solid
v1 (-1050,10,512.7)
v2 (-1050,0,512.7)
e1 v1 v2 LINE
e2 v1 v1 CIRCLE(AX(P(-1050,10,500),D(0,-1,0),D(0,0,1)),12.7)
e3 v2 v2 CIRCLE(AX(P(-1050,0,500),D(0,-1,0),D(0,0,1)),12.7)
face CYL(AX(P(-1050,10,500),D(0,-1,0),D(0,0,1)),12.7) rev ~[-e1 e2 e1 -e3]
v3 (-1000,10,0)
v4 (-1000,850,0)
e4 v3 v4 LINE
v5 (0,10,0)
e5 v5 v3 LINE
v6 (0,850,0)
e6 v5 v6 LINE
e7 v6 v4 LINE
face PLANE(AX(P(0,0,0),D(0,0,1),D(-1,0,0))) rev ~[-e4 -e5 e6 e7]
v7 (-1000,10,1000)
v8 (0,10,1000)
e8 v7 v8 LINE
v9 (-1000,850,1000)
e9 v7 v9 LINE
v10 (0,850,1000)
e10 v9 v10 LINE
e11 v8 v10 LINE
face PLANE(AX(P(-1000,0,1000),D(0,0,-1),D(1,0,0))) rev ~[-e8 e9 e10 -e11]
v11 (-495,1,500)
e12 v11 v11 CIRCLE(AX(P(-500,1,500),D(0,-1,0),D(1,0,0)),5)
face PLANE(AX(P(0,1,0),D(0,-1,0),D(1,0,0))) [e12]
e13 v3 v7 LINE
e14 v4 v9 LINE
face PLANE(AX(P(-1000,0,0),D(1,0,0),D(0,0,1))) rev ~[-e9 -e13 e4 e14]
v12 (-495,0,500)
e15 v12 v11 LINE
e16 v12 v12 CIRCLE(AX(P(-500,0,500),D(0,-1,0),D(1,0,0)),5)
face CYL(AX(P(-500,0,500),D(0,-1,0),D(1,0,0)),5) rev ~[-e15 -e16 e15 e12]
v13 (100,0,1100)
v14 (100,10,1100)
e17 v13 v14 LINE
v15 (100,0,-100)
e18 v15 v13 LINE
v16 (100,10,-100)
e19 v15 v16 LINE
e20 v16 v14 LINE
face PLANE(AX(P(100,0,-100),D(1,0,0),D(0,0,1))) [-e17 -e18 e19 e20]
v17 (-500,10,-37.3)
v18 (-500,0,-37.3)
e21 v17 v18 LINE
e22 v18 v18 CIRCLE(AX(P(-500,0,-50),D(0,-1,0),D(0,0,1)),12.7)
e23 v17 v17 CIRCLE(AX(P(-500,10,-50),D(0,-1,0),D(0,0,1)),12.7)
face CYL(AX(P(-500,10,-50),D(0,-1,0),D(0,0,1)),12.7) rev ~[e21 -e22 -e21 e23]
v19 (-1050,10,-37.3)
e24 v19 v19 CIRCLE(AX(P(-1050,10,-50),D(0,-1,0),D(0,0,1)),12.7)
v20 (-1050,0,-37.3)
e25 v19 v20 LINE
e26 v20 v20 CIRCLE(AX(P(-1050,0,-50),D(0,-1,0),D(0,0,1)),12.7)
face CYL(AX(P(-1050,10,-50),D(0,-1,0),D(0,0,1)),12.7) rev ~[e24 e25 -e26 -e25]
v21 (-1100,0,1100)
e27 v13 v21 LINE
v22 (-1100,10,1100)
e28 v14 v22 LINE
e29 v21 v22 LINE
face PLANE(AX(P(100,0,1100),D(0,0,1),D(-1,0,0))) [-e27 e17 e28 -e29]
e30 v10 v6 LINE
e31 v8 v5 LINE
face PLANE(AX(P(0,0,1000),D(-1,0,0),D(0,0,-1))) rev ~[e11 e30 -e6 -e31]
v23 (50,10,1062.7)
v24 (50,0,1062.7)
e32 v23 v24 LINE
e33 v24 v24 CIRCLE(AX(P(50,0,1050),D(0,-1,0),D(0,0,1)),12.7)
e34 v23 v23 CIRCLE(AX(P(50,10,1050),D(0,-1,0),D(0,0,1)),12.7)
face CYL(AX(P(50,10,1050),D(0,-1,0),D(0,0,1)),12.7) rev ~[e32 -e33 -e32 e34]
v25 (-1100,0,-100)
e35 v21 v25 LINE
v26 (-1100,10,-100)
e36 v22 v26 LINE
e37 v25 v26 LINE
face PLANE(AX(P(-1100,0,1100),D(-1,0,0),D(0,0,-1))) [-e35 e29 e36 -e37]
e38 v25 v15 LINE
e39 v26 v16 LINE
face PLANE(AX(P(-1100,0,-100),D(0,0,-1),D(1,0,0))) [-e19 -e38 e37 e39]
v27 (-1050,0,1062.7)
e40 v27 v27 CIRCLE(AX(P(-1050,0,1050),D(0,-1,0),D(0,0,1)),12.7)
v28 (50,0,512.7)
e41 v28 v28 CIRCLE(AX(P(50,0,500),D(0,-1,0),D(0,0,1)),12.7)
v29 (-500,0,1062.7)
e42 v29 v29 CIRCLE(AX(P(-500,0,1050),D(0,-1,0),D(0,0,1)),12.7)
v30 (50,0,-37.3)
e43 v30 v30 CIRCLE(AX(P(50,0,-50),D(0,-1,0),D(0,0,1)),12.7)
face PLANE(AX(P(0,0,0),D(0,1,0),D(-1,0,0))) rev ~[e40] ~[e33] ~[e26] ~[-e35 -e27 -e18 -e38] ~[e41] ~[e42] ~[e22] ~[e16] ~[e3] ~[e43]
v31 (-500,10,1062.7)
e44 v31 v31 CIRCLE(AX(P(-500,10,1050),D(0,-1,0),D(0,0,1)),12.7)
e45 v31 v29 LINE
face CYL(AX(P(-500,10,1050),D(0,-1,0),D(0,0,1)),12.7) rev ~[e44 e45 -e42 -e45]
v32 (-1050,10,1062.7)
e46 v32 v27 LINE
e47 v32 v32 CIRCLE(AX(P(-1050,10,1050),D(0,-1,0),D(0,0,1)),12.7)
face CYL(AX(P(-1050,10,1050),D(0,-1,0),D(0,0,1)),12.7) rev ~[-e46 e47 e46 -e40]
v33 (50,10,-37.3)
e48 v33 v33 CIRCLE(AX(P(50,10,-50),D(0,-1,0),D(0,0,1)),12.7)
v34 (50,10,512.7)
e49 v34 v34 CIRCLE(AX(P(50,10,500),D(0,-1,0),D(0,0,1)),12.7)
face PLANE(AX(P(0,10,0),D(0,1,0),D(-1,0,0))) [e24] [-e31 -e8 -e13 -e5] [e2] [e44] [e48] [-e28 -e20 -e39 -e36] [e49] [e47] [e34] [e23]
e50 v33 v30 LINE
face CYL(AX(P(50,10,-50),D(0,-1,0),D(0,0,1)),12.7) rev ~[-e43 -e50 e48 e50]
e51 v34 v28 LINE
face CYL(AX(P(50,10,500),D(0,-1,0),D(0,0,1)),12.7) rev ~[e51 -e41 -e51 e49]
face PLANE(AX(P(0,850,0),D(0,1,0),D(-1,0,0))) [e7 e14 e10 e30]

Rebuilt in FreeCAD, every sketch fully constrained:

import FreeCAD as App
import Part
import Sketcher
from FreeCAD import Vector

doc = App.newDocument("Part")
body = doc.addObject("PartDesign::Body", "Body")

# Sketch on XZ plane
sketch1 = doc.addObject("Sketcher::SketchObject", "Sketch")
body.addObject(sketch1)
sketch1.AttachmentSupport = (doc.XZ_Plane, [""])
sketch1.MapMode = "FlatFace"
sketch1.addGeometry([
    Part.LineSegment(Vector(0, 1000, 0), Vector(0, 0, 0)),
    Part.LineSegment(Vector(0, 0, 0), Vector(-1000, 0, 0)),
    Part.LineSegment(Vector(-1000, 0, 0), Vector(-1000, 1000, 0)),
    Part.LineSegment(Vector(-1000, 1000, 0), Vector(0, 1000, 0)),
], False)
sketch1.addConstraint([
    Sketcher.Constraint("Coincident", 0, 2, 1, 1),
    Sketcher.Constraint("Coincident", 1, 2, 2, 1),
    Sketcher.Constraint("Coincident", 2, 2, 3, 1),
    Sketcher.Constraint("Coincident", 3, 2, 0, 1),
    Sketcher.Constraint("Vertical", 0),
    Sketcher.Constraint("Horizontal", 1),
    Sketcher.Constraint("Vertical", 2),
    Sketcher.Constraint("Horizontal", 3),
    Sketcher.Constraint("Coincident", 0, 2, -1, 1),
    Sketcher.Constraint("Equal", 3, 0),
    Sketcher.Constraint("DistanceX", 1, 2, 1, 1, 1000.0),
])
pad1 = doc.addObject("PartDesign::Pad", "Pad")
body.addObject(pad1)
pad1.Profile = sketch1
pad1.Length = 850
pad1.Reversed = True

# Sketch on XZ plane
sketch2 = doc.addObject("Sketcher::SketchObject", "Sketch001")
body.addObject(sketch2)
sketch2.AttachmentSupport = (doc.XZ_Plane, [""])
sketch2.MapMode = "FlatFace"
sketch2.addGeometry([
    Part.LineSegment(Vector(-1100, 1100, 0), Vector(100, 1100, 0)),  # 0
    Part.LineSegment(Vector(100, 1100, 0), Vector(100, -100, 0)),  # 1
    Part.LineSegment(Vector(100, -100, 0), Vector(-1100, -100, 0)),  # 2
    Part.LineSegment(Vector(-1100, -100, 0), Vector(-1100, 1100, 0)),  # 3
    Part.LineSegment(Vector(-1000, 0, 0), Vector(0, 0, 0)),  # 4
    Part.LineSegment(Vector(0, 0, 0), Vector(0, 1000, 0)),  # 5
    Part.LineSegment(Vector(0, 1000, 0), Vector(-1000, 1000, 0)),  # 6
    Part.LineSegment(Vector(-1000, 1000, 0), Vector(-1000, 0, 0)),  # 7
], False)
sketch2.addConstraint([
    Sketcher.Constraint("Coincident", 0, 2, 1, 1),
    Sketcher.Constraint("Coincident", 1, 2, 2, 1),
    Sketcher.Constraint("Coincident", 2, 2, 3, 1),
    Sketcher.Constraint("Coincident", 3, 2, 0, 1),
    Sketcher.Constraint("Coincident", 4, 2, 5, 1),
    Sketcher.Constraint("Coincident", 5, 2, 6, 1),
    Sketcher.Constraint("Coincident", 6, 2, 7, 1),
    Sketcher.Constraint("Coincident", 7, 2, 4, 1),
    Sketcher.Constraint("Horizontal", 0),
    Sketcher.Constraint("Vertical", 1),
    Sketcher.Constraint("Horizontal", 2),
    Sketcher.Constraint("Vertical", 3),
    Sketcher.Constraint("Horizontal", 4),
    Sketcher.Constraint("Vertical", 5),
    Sketcher.Constraint("Horizontal", 6),
    Sketcher.Constraint("Vertical", 7),
    Sketcher.Constraint("Coincident", 4, 2, -1, 1),
    Sketcher.Constraint("Equal", 2, 1),
    Sketcher.Constraint("Equal", 6, 5),
    Sketcher.Constraint("DistanceX", 4, 1, 4, 2, 1000.0),
    Sketcher.Constraint("DistanceX", -1, 1, 0, 2, 100.0),
    Sketcher.Constraint("DistanceY", 1, 2, -1, 1, 100.0),
    Sketcher.Constraint("DistanceY", 5, 2, 0, 2, 100.0),
])
pad2 = doc.addObject("PartDesign::Pad", "Pad001")
body.addObject(pad2)
pad2.Profile = sketch2
pad2.Length = 10
pad2.Reversed = True

# Sketch on XZ plane
sketch3 = doc.addObject("Sketcher::SketchObject", "Sketch002")
body.addObject(sketch3)
sketch3.AttachmentSupport = (doc.XZ_Plane, [""])
sketch3.MapMode = "FlatFace"
sketch3.AttachmentOffset = App.Placement(Vector(0, 0, -10), App.Rotation())
sketch3.addGeometry([
    Part.Circle(Vector(-1050, 1050, 0), Vector(0, 0, 1), 13),  # 0
    Part.Circle(Vector(-500, 1050, 0), Vector(0, 0, 1), 13),  # 1
    Part.Circle(Vector(50, 1050, 0), Vector(0, 0, 1), 13),  # 2
    Part.Circle(Vector(50, -50, 0), Vector(0, 0, 1), 13),  # 3
    Part.Circle(Vector(-500, -50, 0), Vector(0, 0, 1), 13),  # 4
    Part.Circle(Vector(-1050, -50, 0), Vector(0, 0, 1), 13),  # 5
    Part.Circle(Vector(50, 500, 0), Vector(0, 0, 1), 13),  # 6
    Part.Circle(Vector(-1050, 500, 0), Vector(0, 0, 1), 13),  # 7
], False)
sketch3.addConstraint([
    Sketcher.Constraint("Equal", 0, 1),
    Sketcher.Constraint("Equal", 1, 2),
    Sketcher.Constraint("Equal", 2, 3),
    Sketcher.Constraint("Equal", 3, 4),
    Sketcher.Constraint("Equal", 4, 5),
    Sketcher.Constraint("Equal", 5, 6),
    Sketcher.Constraint("Equal", 6, 7),
    Sketcher.Constraint("Horizontal", 0, 3, 1, 3),
    Sketcher.Constraint("Horizontal", 1, 3, 2, 3),
    Sketcher.Constraint("Horizontal", 3, 3, 4, 3),
    Sketcher.Constraint("Horizontal", 4, 3, 5, 3),
    Sketcher.Constraint("Horizontal", 6, 3, 7, 3),
    Sketcher.Constraint("Vertical", 2, 3, 3, 3),
    Sketcher.Constraint("Vertical", 1, 3, 4, 3),
    Sketcher.Constraint("Vertical", 0, 3, 5, 3),
    Sketcher.Constraint("Vertical", 3, 3, 6, 3),
    Sketcher.Constraint("Vertical", 5, 3, 7, 3),
    Sketcher.Constraint("Diameter", 0, 25.4),
    Sketcher.Constraint("DistanceX", 0, 3, -1, 1, 1050.0),
    Sketcher.Constraint("DistanceY", -1, 1, 0, 3, 1050.0),
    Sketcher.Constraint("DistanceX", 1, 3, -1, 1, 500.0),
    Sketcher.Constraint("DistanceX", -1, 1, 2, 3, 50.0),
    Sketcher.Constraint("DistanceY", 3, 3, -1, 1, 50.0),
    Sketcher.Constraint("DistanceY", -1, 1, 6, 3, 500.0),
])
doc.recompute()
hole = doc.addObject("PartDesign::Hole", "Hole")
body.addObject(hole)
hole.Profile = sketch3
hole.ThreadType = "None"
hole.Diameter = 25.4
hole.DepthType = "ThroughAll"
hole.Reversed = True

# Sketch on XZ plane
sketch4 = doc.addObject("Sketcher::SketchObject", "Sketch003")
body.addObject(sketch4)
sketch4.AttachmentSupport = (doc.XZ_Plane, [""])
sketch4.MapMode = "FlatFace"
sketch4.addGeometry(Part.Circle(Vector(-500, 500, 0), Vector(0, 0, 1), 5), False)
sketch4.addConstraint([
    Sketcher.Constraint("Diameter", 0, 10.0),
    Sketcher.Constraint("DistanceX", 0, 3, -1, 1, 500.0),
    Sketcher.Constraint("DistanceY", -1, 1, 0, 3, 500.0),
])
pocket1 = doc.addObject("PartDesign::Pocket", "Pocket")
body.addObject(pocket1)
pocket1.Profile = sketch4
pocket1.Length = 1

doc.recompute()
